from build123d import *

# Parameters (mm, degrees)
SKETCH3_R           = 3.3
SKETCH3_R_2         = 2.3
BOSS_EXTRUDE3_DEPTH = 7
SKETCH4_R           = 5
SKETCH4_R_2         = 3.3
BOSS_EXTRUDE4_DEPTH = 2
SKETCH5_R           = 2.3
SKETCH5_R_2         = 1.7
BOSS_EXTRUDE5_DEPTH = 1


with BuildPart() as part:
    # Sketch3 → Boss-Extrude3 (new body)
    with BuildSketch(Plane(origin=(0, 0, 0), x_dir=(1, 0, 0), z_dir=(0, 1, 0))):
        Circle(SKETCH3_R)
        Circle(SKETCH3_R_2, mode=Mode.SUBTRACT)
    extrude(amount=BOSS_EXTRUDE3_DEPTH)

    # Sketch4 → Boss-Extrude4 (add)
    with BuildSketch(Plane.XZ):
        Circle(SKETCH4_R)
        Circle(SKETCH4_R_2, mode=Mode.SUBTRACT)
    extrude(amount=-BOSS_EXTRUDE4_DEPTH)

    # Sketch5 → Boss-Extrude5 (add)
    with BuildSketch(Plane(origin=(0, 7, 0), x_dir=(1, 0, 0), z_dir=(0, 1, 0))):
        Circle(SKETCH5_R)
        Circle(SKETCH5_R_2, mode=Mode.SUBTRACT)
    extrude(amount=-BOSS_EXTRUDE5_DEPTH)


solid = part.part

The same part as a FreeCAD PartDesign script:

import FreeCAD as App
import Part
import Sketcher
from FreeCAD import Vector
Q = App.Units.Quantity

doc = App.newDocument("Part")
params = doc.addObject("Spreadsheet::Sheet", "Params")
for row, (alias, value) in enumerate([
    ("sketch1_diameter", "6.6 mm"),
    ("sketch1_diameter2", "4.6 mm"),
    ("pad1_length", "7 mm"),
    ("sketch2_diameter", "10 mm"),
    ("sketch2_diameter2", "6.6 mm"),
    ("pad2_length", "2 mm"),
    ("sketch3_diameter", "4.6 mm"),
    ("sketch3_diameter2", "3.4 mm"),
    ("pad3_length", "1 mm"),
], start=1):
    params.set(f"A{row}", alias)
    params.set(f"B{row}", "=" + value)
    params.setAlias(f"B{row}", alias)

body = doc.addObject("PartDesign::Body", "Body")

# Sketch on XZ plane
sketch1 = body.newObject("Sketcher::SketchObject", "Sketch")
sketch1.AttachmentSupport = (doc.getObject("XZ_Plane"), [""])
sketch1.MapMode = "FlatFace"
sketch1.addGeometry(Part.Circle(Vector(0, 0, 0), Vector(0, 0, 1), 3.3), False)
sketch1.addGeometry(Part.Circle(Vector(0, 0, 0), Vector(0, 0, 1), 2.3), False)
sketch1.addConstraint(Sketcher.Constraint("Coincident", 0, 3, -1, 1))
sketch1.addConstraint(Sketcher.Constraint("Coincident", 1, 3, -1, 1))
sketch1.addConstraint(Sketcher.Constraint("Diameter", 0, Q("6.6 mm")))
sketch1.addConstraint(Sketcher.Constraint("Diameter", 1, Q("4.6 mm")))
sketch1.setExpression("Constraints[2]", "Params.sketch1_diameter")
sketch1.setExpression("Constraints[3]", "Params.sketch1_diameter2")
pad1 = body.newObject("PartDesign::Pad", "Pad")
pad1.Profile = sketch1
pad1.setExpression("Length", "Params.pad1_length")
pad1.Reversed = True

# Sketch on XZ plane
sketch2 = body.newObject("Sketcher::SketchObject", "Sketch001")
sketch2.AttachmentSupport = (doc.getObject("XZ_Plane"), [""])
sketch2.MapMode = "FlatFace"
sketch2.addGeometry(Part.Circle(Vector(0, 0, 0), Vector(0, 0, 1), 5), False)
sketch2.addGeometry(Part.Circle(Vector(0, 0, 0), Vector(0, 0, 1), 3.3), False)
sketch2.addConstraint(Sketcher.Constraint("Coincident", 0, 3, -1, 1))
sketch2.addConstraint(Sketcher.Constraint("Coincident", 1, 3, -1, 1))
sketch2.addConstraint(Sketcher.Constraint("Diameter", 0, Q("10 mm")))
sketch2.addConstraint(Sketcher.Constraint("Diameter", 1, Q("6.6 mm")))
sketch2.setExpression("Constraints[2]", "Params.sketch2_diameter")
sketch2.setExpression("Constraints[3]", "Params.sketch2_diameter2")
pad2 = body.newObject("PartDesign::Pad", "Pad001")
pad2.Profile = sketch2
pad2.setExpression("Length", "Params.pad2_length")
pad2.Reversed = True

# Sketch on XZ plane
sketch3 = body.newObject("Sketcher::SketchObject", "Sketch002")
sketch3.AttachmentSupport = (doc.getObject("XZ_Plane"), [""])
sketch3.MapMode = "FlatFace"
sketch3.AttachmentOffset = App.Placement(Vector(0, 0, -7), App.Rotation())
sketch3.addGeometry(Part.Circle(Vector(0, 0, 0), Vector(0, 0, 1), 2.3), False)
sketch3.addGeometry(Part.Circle(Vector(0, 0, 0), Vector(0, 0, 1), 1.7), False)
sketch3.addConstraint(Sketcher.Constraint("Coincident", 0, 3, -1, 1))
sketch3.addConstraint(Sketcher.Constraint("Coincident", 1, 3, -1, 1))
sketch3.addConstraint(Sketcher.Constraint("Diameter", 0, Q("4.6 mm")))
sketch3.addConstraint(Sketcher.Constraint("Diameter", 1, Q("3.4 mm")))
sketch3.setExpression("Constraints[2]", "Params.sketch3_diameter")
sketch3.setExpression("Constraints[3]", "Params.sketch3_diameter2")
pad3 = body.newObject("PartDesign::Pad", "Pad002")
pad3.Profile = sketch3
pad3.setExpression("Length", "Params.pad3_length")

doc.recompute()
